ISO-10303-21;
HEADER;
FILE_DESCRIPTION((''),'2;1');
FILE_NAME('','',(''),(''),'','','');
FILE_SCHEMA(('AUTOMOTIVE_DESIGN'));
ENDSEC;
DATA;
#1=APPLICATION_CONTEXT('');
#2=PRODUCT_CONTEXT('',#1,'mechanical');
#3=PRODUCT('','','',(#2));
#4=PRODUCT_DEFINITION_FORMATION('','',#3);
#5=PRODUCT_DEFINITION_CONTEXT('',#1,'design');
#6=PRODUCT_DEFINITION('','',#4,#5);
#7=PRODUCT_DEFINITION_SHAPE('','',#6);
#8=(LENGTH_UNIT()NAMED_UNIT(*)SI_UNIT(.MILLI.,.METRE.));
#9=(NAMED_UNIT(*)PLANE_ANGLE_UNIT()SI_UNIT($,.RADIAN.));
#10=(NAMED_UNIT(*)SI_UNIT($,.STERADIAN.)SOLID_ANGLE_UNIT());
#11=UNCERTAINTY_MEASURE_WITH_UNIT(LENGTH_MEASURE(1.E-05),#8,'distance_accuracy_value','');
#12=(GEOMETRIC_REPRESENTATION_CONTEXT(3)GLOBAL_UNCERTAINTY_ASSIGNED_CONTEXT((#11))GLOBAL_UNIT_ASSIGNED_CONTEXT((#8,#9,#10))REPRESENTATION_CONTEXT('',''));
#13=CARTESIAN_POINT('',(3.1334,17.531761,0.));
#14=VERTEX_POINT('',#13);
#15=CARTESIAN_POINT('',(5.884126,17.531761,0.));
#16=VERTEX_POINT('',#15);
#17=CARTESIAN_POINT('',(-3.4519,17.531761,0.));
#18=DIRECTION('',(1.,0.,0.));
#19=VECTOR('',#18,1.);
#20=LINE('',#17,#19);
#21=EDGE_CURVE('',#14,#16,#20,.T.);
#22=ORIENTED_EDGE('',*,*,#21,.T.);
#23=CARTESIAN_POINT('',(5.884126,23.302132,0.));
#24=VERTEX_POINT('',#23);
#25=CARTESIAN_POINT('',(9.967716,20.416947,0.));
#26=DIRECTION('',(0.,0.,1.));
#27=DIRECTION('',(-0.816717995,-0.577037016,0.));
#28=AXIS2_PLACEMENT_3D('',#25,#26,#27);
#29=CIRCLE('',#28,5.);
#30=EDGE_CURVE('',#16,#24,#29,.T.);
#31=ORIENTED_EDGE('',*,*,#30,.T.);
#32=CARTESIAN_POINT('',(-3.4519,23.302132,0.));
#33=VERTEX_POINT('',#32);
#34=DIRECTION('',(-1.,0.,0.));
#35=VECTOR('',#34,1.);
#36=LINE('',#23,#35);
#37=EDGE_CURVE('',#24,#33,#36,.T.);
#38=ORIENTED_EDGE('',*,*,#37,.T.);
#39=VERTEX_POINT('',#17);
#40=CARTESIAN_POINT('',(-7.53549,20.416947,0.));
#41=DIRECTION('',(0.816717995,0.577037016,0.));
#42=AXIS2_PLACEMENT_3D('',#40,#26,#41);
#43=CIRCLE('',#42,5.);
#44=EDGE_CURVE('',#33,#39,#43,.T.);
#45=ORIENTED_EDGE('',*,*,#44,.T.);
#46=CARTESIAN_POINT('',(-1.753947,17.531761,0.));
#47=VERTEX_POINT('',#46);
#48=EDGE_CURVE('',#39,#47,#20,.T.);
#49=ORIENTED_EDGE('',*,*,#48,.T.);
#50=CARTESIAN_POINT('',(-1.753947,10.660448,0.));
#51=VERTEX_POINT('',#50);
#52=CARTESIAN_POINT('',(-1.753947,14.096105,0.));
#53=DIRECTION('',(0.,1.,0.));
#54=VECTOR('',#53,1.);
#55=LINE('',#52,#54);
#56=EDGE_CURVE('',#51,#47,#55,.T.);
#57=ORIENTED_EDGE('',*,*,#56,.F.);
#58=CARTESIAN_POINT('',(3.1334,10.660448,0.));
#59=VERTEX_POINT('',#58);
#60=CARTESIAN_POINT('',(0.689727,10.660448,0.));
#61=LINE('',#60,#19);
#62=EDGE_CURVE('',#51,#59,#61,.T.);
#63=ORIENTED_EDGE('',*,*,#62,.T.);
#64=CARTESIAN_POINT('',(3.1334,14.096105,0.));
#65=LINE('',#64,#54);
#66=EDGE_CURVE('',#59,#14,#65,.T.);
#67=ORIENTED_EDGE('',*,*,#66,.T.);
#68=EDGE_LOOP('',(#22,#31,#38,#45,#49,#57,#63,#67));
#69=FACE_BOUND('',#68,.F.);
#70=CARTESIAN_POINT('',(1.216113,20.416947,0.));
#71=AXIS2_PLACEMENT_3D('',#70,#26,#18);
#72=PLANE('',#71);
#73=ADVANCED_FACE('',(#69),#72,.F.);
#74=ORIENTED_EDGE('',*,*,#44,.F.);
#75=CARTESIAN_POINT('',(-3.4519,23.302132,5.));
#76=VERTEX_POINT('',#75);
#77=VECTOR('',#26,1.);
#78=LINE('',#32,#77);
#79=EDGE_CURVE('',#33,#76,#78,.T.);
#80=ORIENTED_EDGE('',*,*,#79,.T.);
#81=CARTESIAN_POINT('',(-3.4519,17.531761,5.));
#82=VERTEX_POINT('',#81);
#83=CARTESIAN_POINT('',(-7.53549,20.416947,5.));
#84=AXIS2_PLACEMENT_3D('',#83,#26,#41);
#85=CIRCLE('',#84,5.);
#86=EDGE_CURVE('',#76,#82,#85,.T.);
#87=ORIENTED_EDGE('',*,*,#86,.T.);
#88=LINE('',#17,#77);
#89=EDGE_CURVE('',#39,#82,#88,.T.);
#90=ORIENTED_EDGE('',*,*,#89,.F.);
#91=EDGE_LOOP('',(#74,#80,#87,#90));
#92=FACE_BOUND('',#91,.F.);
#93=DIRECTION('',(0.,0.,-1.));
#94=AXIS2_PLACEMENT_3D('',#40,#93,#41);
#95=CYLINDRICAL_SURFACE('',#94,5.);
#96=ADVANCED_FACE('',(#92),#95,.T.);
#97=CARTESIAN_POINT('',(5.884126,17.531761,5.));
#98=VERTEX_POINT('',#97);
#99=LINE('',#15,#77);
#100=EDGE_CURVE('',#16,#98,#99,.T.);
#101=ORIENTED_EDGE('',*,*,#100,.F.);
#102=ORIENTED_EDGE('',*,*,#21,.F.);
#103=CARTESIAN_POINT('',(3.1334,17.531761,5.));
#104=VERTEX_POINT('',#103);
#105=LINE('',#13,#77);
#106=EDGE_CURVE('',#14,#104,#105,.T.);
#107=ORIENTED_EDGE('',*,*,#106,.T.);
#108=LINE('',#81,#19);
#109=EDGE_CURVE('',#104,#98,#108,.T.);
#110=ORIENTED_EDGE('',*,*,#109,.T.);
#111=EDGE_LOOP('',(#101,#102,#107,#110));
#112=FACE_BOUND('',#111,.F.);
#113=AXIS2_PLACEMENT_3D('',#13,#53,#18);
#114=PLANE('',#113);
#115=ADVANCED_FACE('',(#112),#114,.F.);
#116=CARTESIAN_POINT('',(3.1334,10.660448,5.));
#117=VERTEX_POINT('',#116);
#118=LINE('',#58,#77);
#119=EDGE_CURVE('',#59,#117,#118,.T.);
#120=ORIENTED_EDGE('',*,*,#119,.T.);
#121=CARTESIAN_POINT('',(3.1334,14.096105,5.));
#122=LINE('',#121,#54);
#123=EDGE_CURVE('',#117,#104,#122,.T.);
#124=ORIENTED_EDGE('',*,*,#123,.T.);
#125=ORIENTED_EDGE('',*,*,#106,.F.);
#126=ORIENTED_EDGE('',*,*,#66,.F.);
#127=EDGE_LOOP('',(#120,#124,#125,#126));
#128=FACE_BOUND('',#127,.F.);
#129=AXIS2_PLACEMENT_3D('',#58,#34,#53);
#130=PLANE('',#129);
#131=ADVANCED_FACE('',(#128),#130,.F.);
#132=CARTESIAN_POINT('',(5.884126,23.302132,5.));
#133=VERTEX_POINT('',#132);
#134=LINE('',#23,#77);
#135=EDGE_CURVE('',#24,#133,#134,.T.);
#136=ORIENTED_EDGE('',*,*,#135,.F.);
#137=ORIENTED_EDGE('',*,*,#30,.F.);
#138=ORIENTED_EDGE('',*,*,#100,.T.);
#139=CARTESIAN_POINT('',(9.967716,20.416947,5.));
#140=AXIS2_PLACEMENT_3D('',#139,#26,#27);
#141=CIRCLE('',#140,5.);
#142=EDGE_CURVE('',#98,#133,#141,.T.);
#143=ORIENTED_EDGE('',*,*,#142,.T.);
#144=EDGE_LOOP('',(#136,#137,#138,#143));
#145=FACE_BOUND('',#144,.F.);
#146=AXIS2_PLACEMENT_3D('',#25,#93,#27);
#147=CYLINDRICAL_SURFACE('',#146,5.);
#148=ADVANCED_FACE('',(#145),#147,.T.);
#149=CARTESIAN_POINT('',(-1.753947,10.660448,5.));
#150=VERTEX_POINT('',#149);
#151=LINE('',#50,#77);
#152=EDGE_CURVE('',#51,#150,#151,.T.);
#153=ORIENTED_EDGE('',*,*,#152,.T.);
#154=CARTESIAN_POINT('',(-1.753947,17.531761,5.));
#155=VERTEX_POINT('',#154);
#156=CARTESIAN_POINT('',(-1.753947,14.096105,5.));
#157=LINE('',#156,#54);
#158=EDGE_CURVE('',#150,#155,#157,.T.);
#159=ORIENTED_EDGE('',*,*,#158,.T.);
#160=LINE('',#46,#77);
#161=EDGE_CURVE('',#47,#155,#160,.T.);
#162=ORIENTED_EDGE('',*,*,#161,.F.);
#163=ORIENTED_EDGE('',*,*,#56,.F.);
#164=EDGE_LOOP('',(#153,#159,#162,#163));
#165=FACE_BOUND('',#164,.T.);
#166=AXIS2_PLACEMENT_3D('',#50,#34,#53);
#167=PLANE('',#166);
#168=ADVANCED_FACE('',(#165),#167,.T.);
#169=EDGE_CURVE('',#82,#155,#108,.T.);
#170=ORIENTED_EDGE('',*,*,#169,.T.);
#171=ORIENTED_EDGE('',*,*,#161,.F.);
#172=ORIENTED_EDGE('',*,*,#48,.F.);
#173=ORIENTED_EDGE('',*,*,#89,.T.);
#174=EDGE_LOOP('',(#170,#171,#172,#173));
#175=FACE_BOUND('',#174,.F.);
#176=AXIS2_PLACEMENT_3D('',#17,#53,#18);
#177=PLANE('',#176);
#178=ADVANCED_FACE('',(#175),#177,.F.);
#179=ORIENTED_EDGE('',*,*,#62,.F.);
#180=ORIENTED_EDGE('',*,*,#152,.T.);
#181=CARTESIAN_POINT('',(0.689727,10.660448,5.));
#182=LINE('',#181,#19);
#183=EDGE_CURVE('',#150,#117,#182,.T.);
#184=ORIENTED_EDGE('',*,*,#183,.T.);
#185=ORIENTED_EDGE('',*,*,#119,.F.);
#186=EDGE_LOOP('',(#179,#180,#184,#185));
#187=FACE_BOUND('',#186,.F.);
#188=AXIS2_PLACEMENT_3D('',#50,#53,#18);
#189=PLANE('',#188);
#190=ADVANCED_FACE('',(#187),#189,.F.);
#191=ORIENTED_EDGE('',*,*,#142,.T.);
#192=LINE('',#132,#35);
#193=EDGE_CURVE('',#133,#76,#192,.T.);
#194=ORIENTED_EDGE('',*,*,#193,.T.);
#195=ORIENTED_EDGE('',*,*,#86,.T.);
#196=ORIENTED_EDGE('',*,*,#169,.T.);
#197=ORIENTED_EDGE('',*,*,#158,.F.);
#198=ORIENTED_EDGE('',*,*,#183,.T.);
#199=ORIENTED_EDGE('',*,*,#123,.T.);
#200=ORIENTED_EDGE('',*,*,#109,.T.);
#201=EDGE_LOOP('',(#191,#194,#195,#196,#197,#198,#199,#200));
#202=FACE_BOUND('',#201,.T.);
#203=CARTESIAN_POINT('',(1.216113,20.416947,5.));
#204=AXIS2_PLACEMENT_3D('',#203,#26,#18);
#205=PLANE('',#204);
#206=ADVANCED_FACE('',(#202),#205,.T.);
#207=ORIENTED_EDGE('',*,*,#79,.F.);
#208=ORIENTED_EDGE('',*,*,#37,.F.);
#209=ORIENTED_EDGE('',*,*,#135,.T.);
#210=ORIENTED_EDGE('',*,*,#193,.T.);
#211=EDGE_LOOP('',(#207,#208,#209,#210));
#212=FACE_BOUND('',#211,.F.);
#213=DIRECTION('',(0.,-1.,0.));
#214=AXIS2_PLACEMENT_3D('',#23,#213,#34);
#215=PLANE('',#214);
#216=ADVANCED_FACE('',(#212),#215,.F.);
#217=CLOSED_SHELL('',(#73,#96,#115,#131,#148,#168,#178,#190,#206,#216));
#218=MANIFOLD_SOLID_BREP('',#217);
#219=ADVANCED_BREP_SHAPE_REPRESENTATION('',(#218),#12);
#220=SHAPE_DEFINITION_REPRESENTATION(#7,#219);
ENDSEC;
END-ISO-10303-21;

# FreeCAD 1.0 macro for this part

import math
import FreeCAD as App
import Part
import Sketcher
from FreeCAD import Vector
Q = App.Units.Quantity

doc = App.newDocument("Part")
params = doc.addObject("Spreadsheet::Sheet", "Params")
for row, (alias, value) in enumerate([
    ("sketch1_radius", "5 mm"),
    ("pad1_length", "5 mm"),
], start=1):
    params.set(f"A{row}", alias)
    params.set(f"B{row}", "=" + value)
    params.setAlias(f"B{row}", alias)

body = doc.addObject("PartDesign::Body", "Body")

# Sketch on XY plane
sketch1 = doc.addObject("Sketcher::SketchObject", "Sketch")
body.addObject(sketch1)
sketch1.AttachmentSupport = (doc.XY_Plane, [""])
sketch1.MapMode = "FlatFace"
sketch1.addGeometry([
    Part.LineSegment(Vector(-3.5, 17.5, 0), Vector(-1.8, 17.5, 0)),  # 0
    Part.LineSegment(Vector(-1.8, 17.5, 0), Vector(-1.8, 10.7, 0)),  # 1
    Part.LineSegment(Vector(-1.8, 10.7, 0), Vector(3.1, 10.7, 0)),  # 2
    Part.LineSegment(Vector(3.1, 10.7, 0), Vector(3.1, 17.5, 0)),  # 3
    Part.LineSegment(Vector(3.1, 17.5, 0), Vector(5.9, 17.5, 0)),  # 4
    Part.ArcOfCircle(Part.Circle(Vector(10, 20.4, 0), Vector(0, 0, 1), 5), math.radians(-145), math.radians(145)),  # 5
    Part.LineSegment(Vector(5.9, 23.3, 0), Vector(-3.5, 23.3, 0)),  # 6
    Part.ArcOfCircle(Part.Circle(Vector(-7.5, 20.4, 0), Vector(0, 0, 1), 5), math.radians(35), math.radians(325)),  # 7
], False)
sketch1.addConstraint([
    Sketcher.Constraint("Coincident", 0, 2, 1, 1),
    Sketcher.Constraint("Coincident", 1, 2, 2, 1),
    Sketcher.Constraint("Coincident", 2, 2, 3, 1),
    Sketcher.Constraint("Coincident", 3, 2, 4, 1),
    Sketcher.Constraint("Coincident", 4, 2, 5, 1),
    Sketcher.Constraint("Coincident", 5, 2, 6, 1),
    Sketcher.Constraint("Coincident", 6, 2, 7, 1),
    Sketcher.Constraint("Coincident", 7, 2, 0, 1),
    Sketcher.Constraint("Horizontal", 0),
    Sketcher.Constraint("Vertical", 1),
    Sketcher.Constraint("Horizontal", 2),
    Sketcher.Constraint("Vertical", 3),
    Sketcher.Constraint("Horizontal", 4),
    Sketcher.Constraint("Horizontal", 6),
    Sketcher.Constraint("Equal", 5, 7),
    Sketcher.Constraint("Horizontal", 5, 3, 7, 3),
    Sketcher.Constraint("Horizontal", 0, 2, 3, 2),
    Sketcher.Constraint("Vertical", 4, 2, 5, 2),
    Sketcher.Constraint("Radius", 5, Q("5 mm")),
    Sketcher.Constraint("DistanceX", -1, 1, 2, 2, Q("3.1334 mm")),
    Sketcher.Constraint("DistanceX", 6, 2, -1, 1, Q("3.4519 mm")),
    Sketcher.Constraint("DistanceY", 1, 2, 7, 3, Q("9.756498 mm")),
    Sketcher.Constraint("DistanceX", 0, 1, 0, 2, Q("1.697954 mm")),
    Sketcher.Constraint("DistanceX", 4, 1, 4, 2, Q("2.750726 mm")),
    Sketcher.Constraint("DistanceY", 1, 2, 1, 1, Q("6.871313 mm")),
    Sketcher.Constraint("DistanceY", -1, 1, 0, 2, Q("17.531761 mm")),
])
sketch1.setExpression("Constraints[18]", "Params.sketch1_radius")
pad1 = doc.addObject("PartDesign::Pad", "Pad")
body.addObject(pad1)
pad1.Profile = sketch1
pad1.setExpression("Length", "Params.pad1_length")

doc.recompute()
